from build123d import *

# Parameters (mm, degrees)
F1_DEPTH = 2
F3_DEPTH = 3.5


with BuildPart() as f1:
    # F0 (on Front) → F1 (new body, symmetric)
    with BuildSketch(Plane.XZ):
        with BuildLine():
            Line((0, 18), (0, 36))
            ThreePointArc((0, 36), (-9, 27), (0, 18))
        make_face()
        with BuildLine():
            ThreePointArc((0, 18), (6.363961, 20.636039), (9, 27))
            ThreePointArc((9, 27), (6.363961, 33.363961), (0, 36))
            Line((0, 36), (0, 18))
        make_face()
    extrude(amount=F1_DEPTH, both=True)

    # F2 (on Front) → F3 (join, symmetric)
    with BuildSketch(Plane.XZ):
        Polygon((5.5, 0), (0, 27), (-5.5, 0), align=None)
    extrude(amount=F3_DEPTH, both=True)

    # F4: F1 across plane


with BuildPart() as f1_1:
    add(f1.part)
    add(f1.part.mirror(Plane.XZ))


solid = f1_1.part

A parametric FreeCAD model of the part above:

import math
import FreeCAD as App
import Part
import Sketcher
from FreeCAD import Vector
Q = App.Units.Quantity

doc = App.newDocument("Part")
body = doc.addObject("PartDesign::Body", "Body")

sketch1 = body.newObject("Sketcher::SketchObject", "Sketch")
sketch1.AttachmentSupport = (doc.getObject("XZ_Plane"), [""])
sketch1.MapMode = "FlatFace"
sketch1.addGeometry([
    Part.ArcOfCircle(Part.Circle(Vector(0, 27, 0), Vector(0, 0, 1), 9), math.radians(90), math.radians(270)),
    Part.ArcOfCircle(Part.Circle(Vector(0, 27, 0), Vector(0, 0, 1), 9), math.radians(-89.999999), math.radians(-0.000001)),
    Part.ArcOfCircle(Part.Circle(Vector(0, 27, 0), Vector(0, 0, 1), 9), math.radians(0.000001), math.radians(89.999999)),
], False)
sketch1.addConstraint([
    Sketcher.Constraint("Tangent", 0, 2, 1, 1),
    Sketcher.Constraint("Tangent", 1, 2, 2, 1),
    Sketcher.Constraint("Tangent", 2, 2, 0, 1),
    Sketcher.Constraint("PointOnObject", 0, 3, -2),
    Sketcher.Constraint("PointOnObject", 0, 2, -2),
    Sketcher.Constraint("PointOnObject", 2, 2, -2),
    Sketcher.Constraint("Horizontal", 2, 3, 1, 2),
    Sketcher.Constraint("Radius", 0, Q("9 mm")),
    Sketcher.Constraint("DistanceY", -1, 1, 0, 3, Q("27 mm")),
])
pad1 = body.newObject("PartDesign::Pad", "Pad")
pad1.Profile = sketch1
pad1.Length = 4
pad1.Midplane = True

sketch2 = body.newObject("Sketcher::SketchObject", "Sketch001")
sketch2.AttachmentSupport = (doc.getObject("XZ_Plane"), [""])
sketch2.MapMode = "FlatFace"
sketch2.addGeometry([
    Part.LineSegment(Vector(5.5, 0, 0), Vector(0, 27, 0)),
    Part.LineSegment(Vector(0, 27, 0), Vector(-5.5, 0, 0)),
    Part.LineSegment(Vector(-5.5, 0, 0), Vector(5.5, 0, 0)),
], False)
sketch2.addConstraint([
    Sketcher.Constraint("Coincident", 0, 2, 1, 1),
    Sketcher.Constraint("Coincident", 1, 2, 2, 1),
    Sketcher.Constraint("Coincident", 2, 2, 0, 1),
    Sketcher.Constraint("Horizontal", 2),
    Sketcher.Constraint("Symmetric", 1, 2, 2, 2, -1, 1),
    Sketcher.Constraint("PointOnObject", 0, 2, -2),
    Sketcher.Constraint("DistanceX", 2, 1, 2, 2, Q("11 mm")),
    Sketcher.Constraint("DistanceY", -1, 1, 0, 2, Q("27 mm")),
])
pad2 = body.newObject("PartDesign::Pad", "Pad001")
pad2.Profile = sketch2
pad2.Length = 7
pad2.Midplane = True
body2 = doc.addObject("PartDesign::Body", "Body001")
doc.recompute()

body2.BaseFeature = body
doc.recompute()

mirroring = doc.addObject("Part::Mirroring", "Mirroring")
mirroring.Source = body
mirroring.Base = Vector(0, 0, 0)
mirroring.Normal = Vector(0, -1, 0)
body3 = doc.addObject("PartDesign::Body", "Body002")
body3.BaseFeature = mirroring
boolean = body2.newObject("PartDesign::Boolean", "Boolean")
boolean.Type = "Fuse"
boolean.addObjects([body3])
doc.recompute()
mirroring.Visibility = False

doc.recompute()
